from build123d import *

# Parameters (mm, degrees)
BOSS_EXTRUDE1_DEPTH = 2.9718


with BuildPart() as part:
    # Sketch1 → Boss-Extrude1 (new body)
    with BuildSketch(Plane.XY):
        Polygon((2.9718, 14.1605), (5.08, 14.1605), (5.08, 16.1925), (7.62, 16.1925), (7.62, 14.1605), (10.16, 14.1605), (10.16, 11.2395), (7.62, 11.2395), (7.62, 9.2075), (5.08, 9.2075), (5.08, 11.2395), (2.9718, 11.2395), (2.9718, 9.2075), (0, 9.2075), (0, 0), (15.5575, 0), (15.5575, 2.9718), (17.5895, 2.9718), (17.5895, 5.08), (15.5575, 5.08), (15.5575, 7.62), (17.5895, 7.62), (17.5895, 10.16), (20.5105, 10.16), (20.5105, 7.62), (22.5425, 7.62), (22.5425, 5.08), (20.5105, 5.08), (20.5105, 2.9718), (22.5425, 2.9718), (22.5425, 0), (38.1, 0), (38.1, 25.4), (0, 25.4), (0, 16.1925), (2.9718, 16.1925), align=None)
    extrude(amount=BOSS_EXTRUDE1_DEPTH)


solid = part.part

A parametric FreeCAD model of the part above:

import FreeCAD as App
import Part
import Sketcher
from FreeCAD import Vector
Q = App.Units.Quantity

doc = App.newDocument("Part")
body = doc.addObject("PartDesign::Body", "Body")

# Sketch on XY plane
sketch1 = body.newObject("Sketcher::SketchObject", "Sketch")
sketch1.AttachmentSupport = (doc.getObject("XY_Plane"), [""])
sketch1.MapMode = "FlatFace"
sketch1.addGeometry(Part.LineSegment(Vector(2.9718, 14.1605, 0), Vector(5.08, 14.1605, 0)), False)
sketch1.addGeometry(Part.LineSegment(Vector(5.08, 14.1605, 0), Vector(5.08, 16.1925, 0)), False)
sketch1.addGeometry(Part.LineSegment(Vector(5.08, 16.1925, 0), Vector(7.62, 16.1925, 0)), False)
sketch1.addGeometry(Part.LineSegment(Vector(7.62, 16.1925, 0), Vector(7.62, 14.1605, 0)), False)
sketch1.addGeometry(Part.LineSegment(Vector(7.62, 14.1605, 0), Vector(10.16, 14.1605, 0)), False)
sketch1.addGeometry(Part.LineSegment(Vector(10.16, 14.1605, 0), Vector(10.16, 11.2395, 0)), False)
sketch1.addGeometry(Part.LineSegment(Vector(10.16, 11.2395, 0), Vector(7.62, 11.2395, 0)), False)
sketch1.addGeometry(Part.LineSegment(Vector(7.62, 11.2395, 0), Vector(7.62, 9.2075, 0)), False)
sketch1.addGeometry(Part.LineSegment(Vector(7.62, 9.2075, 0), Vector(5.08, 9.2075, 0)), False)
sketch1.addGeometry(Part.LineSegment(Vector(5.08, 9.2075, 0), Vector(5.08, 11.2395, 0)), False)
sketch1.addGeometry(Part.LineSegment(Vector(5.08, 11.2395, 0), Vector(2.9718, 11.2395, 0)), False)
sketch1.addGeometry(Part.LineSegment(Vector(2.9718, 11.2395, 0), Vector(2.9718, 9.2075, 0)), False)
sketch1.addGeometry(Part.LineSegment(Vector(2.9718, 9.2075, 0), Vector(0, 9.2075, 0)), False)
sketch1.addGeometry(Part.LineSegment(Vector(0, 9.2075, 0), Vector(0, 0, 0)), False)
sketch1.addGeometry(Part.LineSegment(Vector(0, 0, 0), Vector(15.5575, 0, 0)), False)
sketch1.addGeometry(Part.LineSegment(Vector(15.5575, 0, 0), Vector(15.5575, 2.9718, 0)), False)
sketch1.addGeometry(Part.LineSegment(Vector(15.5575, 2.9718, 0), Vector(17.5895, 2.9718, 0)), False)
sketch1.addGeometry(Part.LineSegment(Vector(17.5895, 2.9718, 0), Vector(17.5895, 5.08, 0)), False)
sketch1.addGeometry(Part.LineSegment(Vector(17.5895, 5.08, 0), Vector(15.5575, 5.08, 0)), False)
sketch1.addGeometry(Part.LineSegment(Vector(15.5575, 5.08, 0), Vector(15.5575, 7.62, 0)), False)
sketch1.addGeometry(Part.LineSegment(Vector(15.5575, 7.62, 0), Vector(17.5895, 7.62, 0)), False)
sketch1.addGeometry(Part.LineSegment(Vector(17.5895, 7.62, 0), Vector(17.5895, 10.16, 0)), False)
sketch1.addGeometry(Part.LineSegment(Vector(17.5895, 10.16, 0), Vector(20.5105, 10.16, 0)), False)
sketch1.addGeometry(Part.LineSegment(Vector(20.5105, 10.16, 0), Vector(20.5105, 7.62, 0)), False)
sketch1.addGeometry(Part.LineSegment(Vector(20.5105, 7.62, 0), Vector(22.5425, 7.62, 0)), False)
sketch1.addGeometry(Part.LineSegment(Vector(22.5425, 7.62, 0), Vector(22.5425, 5.08, 0)), False)
sketch1.addGeometry(Part.LineSegment(Vector(22.5425, 5.08, 0), Vector(20.5105, 5.08, 0)), False)
sketch1.addGeometry(Part.LineSegment(Vector(20.5105, 5.08, 0), Vector(20.5105, 2.9718, 0)), False)
sketch1.addGeometry(Part.LineSegment(Vector(20.5105, 2.9718, 0), Vector(22.5425, 2.9718, 0)), False)
sketch1.addGeometry(Part.LineSegment(Vector(22.5425, 2.9718, 0), Vector(22.5425, 0, 0)), False)
sketch1.addGeometry(Part.LineSegment(Vector(22.5425, 0, 0), Vector(38.1, 0, 0)), False)
sketch1.addGeometry(Part.LineSegment(Vector(38.1, 0, 0), Vector(38.1, 25.4, 0)), False)
sketch1.addGeometry(Part.LineSegment(Vector(38.1, 25.4, 0), Vector(0, 25.4, 0)), False)
sketch1.addGeometry(Part.LineSegment(Vector(0, 25.4, 0), Vector(0, 16.1925, 0)), False)
sketch1.addGeometry(Part.LineSegment(Vector(0, 16.1925, 0), Vector(2.9718, 16.1925, 0)), False)
sketch1.addGeometry(Part.LineSegment(Vector(2.9718, 16.1925, 0), Vector(2.9718, 14.1605, 0)), False)
sketch1.addConstraint(Sketcher.Constraint("Coincident", 0, 2, 1, 1))
sketch1.addConstraint(Sketcher.Constraint("Coincident", 1, 2, 2, 1))
sketch1.addConstraint(Sketcher.Constraint("Coincident", 2, 2, 3, 1))
sketch1.addConstraint(Sketcher.Constraint("Coincident", 3, 2, 4, 1))
sketch1.addConstraint(Sketcher.Constraint("Coincident", 4, 2, 5, 1))
sketch1.addConstraint(Sketcher.Constraint("Coincident", 5, 2, 6, 1))
sketch1.addConstraint(Sketcher.Constraint("Coincident", 6, 2, 7, 1))
sketch1.addConstraint(Sketcher.Constraint("Coincident", 7, 2, 8, 1))
sketch1.addConstraint(Sketcher.Constraint("Coincident", 8, 2, 9, 1))
sketch1.addConstraint(Sketcher.Constraint("Coincident", 9, 2, 10, 1))
sketch1.addConstraint(Sketcher.Constraint("Coincident", 10, 2, 11, 1))
sketch1.addConstraint(Sketcher.Constraint("Coincident", 11, 2, 12, 1))
sketch1.addConstraint(Sketcher.Constraint("Coincident", 12, 2, 13, 1))
sketch1.addConstraint(Sketcher.Constraint("Coincident", 13, 2, 14, 1))
sketch1.addConstraint(Sketcher.Constraint("Coincident", 14, 2, 15, 1))
sketch1.addConstraint(Sketcher.Constraint("Coincident", 15, 2, 16, 1))
sketch1.addConstraint(Sketcher.Constraint("Coincident", 16, 2, 17, 1))
sketch1.addConstraint(Sketcher.Constraint("Coincident", 17, 2, 18, 1))
sketch1.addConstraint(Sketcher.Constraint("Coincident", 18, 2, 19, 1))
sketch1.addConstraint(Sketcher.Constraint("Coincident", 19, 2, 20, 1))
sketch1.addConstraint(Sketcher.Constraint("Coincident", 20, 2, 21, 1))
sketch1.addConstraint(Sketcher.Constraint("Coincident", 21, 2, 22, 1))
sketch1.addConstraint(Sketcher.Constraint("Coincident", 22, 2, 23, 1))
sketch1.addConstraint(Sketcher.Constraint("Coincident", 23, 2, 24, 1))
sketch1.addConstraint(Sketcher.Constraint("Coincident", 24, 2, 25, 1))
sketch1.addConstraint(Sketcher.Constraint("Coincident", 25, 2, 26, 1))
sketch1.addConstraint(Sketcher.Constraint("Coincident", 26, 2, 27, 1))
sketch1.addConstraint(Sketcher.Constraint("Coincident", 27, 2, 28, 1))
sketch1.addConstraint(Sketcher.Constraint("Coincident", 28, 2, 29, 1))
sketch1.addConstraint(Sketcher.Constraint("Coincident", 29, 2, 30, 1))
sketch1.addConstraint(Sketcher.Constraint("Coincident", 30, 2, 31, 1))
sketch1.addConstraint(Sketcher.Constraint("Coincident", 31, 2, 32, 1))
sketch1.addConstraint(Sketcher.Constraint("Coincident", 32, 2, 33, 1))
sketch1.addConstraint(Sketcher.Constraint("Coincident", 33, 2, 34, 1))
sketch1.addConstraint(Sketcher.Constraint("Coincident", 34, 2, 35, 1))
sketch1.addConstraint(Sketcher.Constraint("Coincident", 35, 2, 0, 1))
sketch1.addConstraint(Sketcher.Constraint("Horizontal", 0))
sketch1.addConstraint(Sketcher.Constraint("Vertical", 1))
sketch1.addConstraint(Sketcher.Constraint("Horizontal", 2))
sketch1.addConstraint(Sketcher.Constraint("Vertical", 3))
sketch1.addConstraint(Sketcher.Constraint("Horizontal", 4))
sketch1.addConstraint(Sketcher.Constraint("Vertical", 5))
sketch1.addConstraint(Sketcher.Constraint("Horizontal", 6))
sketch1.addConstraint(Sketcher.Constraint("Vertical", 7))
sketch1.addConstraint(Sketcher.Constraint("Horizontal", 8))
sketch1.addConstraint(Sketcher.Constraint("Vertical", 9))
sketch1.addConstraint(Sketcher.Constraint("Horizontal", 10))
sketch1.addConstraint(Sketcher.Constraint("Vertical", 11))
sketch1.addConstraint(Sketcher.Constraint("Horizontal", 12))
sketch1.addConstraint(Sketcher.Constraint("Vertical", 13))
sketch1.addConstraint(Sketcher.Constraint("Horizontal", 14))
sketch1.addConstraint(Sketcher.Constraint("Vertical", 15))
sketch1.addConstraint(Sketcher.Constraint("Horizontal", 16))
sketch1.addConstraint(Sketcher.Constraint("Vertical", 17))
sketch1.addConstraint(Sketcher.Constraint("Horizontal", 18))
sketch1.addConstraint(Sketcher.Constraint("Vertical", 19))
sketch1.addConstraint(Sketcher.Constraint("Horizontal", 20))
sketch1.addConstraint(Sketcher.Constraint("Vertical", 21))
sketch1.addConstraint(Sketcher.Constraint("Horizontal", 22))
sketch1.addConstraint(Sketcher.Constraint("Vertical", 23))
sketch1.addConstraint(Sketcher.Constraint("Horizontal", 24))
sketch1.addConstraint(Sketcher.Constraint("Vertical", 25))
sketch1.addConstraint(Sketcher.Constraint("Horizontal", 26))
sketch1.addConstraint(Sketcher.Constraint("Vertical", 27))
sketch1.addConstraint(Sketcher.Constraint("Horizontal", 28))
sketch1.addConstraint(Sketcher.Constraint("Vertical", 29))
sketch1.addConstraint(Sketcher.Constraint("Horizontal", 30))
sketch1.addConstraint(Sketcher.Constraint("Vertical", 31))
sketch1.addConstraint(Sketcher.Constraint("Horizontal", 32))
sketch1.addConstraint(Sketcher.Constraint("Vertical", 33))
sketch1.addConstraint(Sketcher.Constraint("Horizontal", 34))
sketch1.addConstraint(Sketcher.Constraint("Vertical", 35))
sketch1.addConstraint(Sketcher.Constraint("Coincident", 13, 2, -1, 1))
sketch1.addConstraint(Sketcher.Constraint("PointOnObject", 29, 2, -1))
sketch1.addConstraint(Sketcher.Constraint("PointOnObject", 32, 2, -2))
sketch1.addConstraint(Sketcher.Constraint("Horizontal", 0, 2, 3, 2))
sketch1.addConstraint(Sketcher.Constraint("Horizontal", 6, 2, 9, 2))
sketch1.addConstraint(Sketcher.Constraint("Horizontal", 8, 2, 11, 2))
sketch1.addConstraint(Sketcher.Constraint("Horizontal", 20, 2, 23, 2))
sketch1.addConstraint(Sketcher.Constraint("Horizontal", 18, 2, 25, 2))
sketch1.addConstraint(Sketcher.Constraint("Horizontal", 16, 2, 27, 2))
sketch1.addConstraint(Sketcher.Constraint("Horizontal", 2, 2, 33, 2))
sketch1.addConstraint(Sketcher.Constraint("Vertical", 3, 2, 6, 2))
sketch1.addConstraint(Sketcher.Constraint("Vertical", 1, 2, 8, 2))
sketch1.addConstraint(Sketcher.Constraint("Vertical", 15, 2, 18, 2))
sketch1.addConstraint(Sketcher.Constraint("Vertical", 17, 2, 20, 2))
sketch1.addConstraint(Sketcher.Constraint("Vertical", 23, 2, 26, 2))
sketch1.addConstraint(Sketcher.Constraint("Vertical", 25, 2, 28, 2))
sketch1.addConstraint(Sketcher.Constraint("Vertical", 11, 2, 34, 2))
sketch1.addConstraint(Sketcher.Constraint("Equal", 2, 4))
sketch1.addConstraint(Sketcher.Constraint("Equal", 20, 24))
sketch1.addConstraint(Sketcher.Constraint("Equal", 14, 30))
sketch1.addConstraint(Sketcher.Constraint("Equal", 28, 1))
sketch1.addConstraint(Sketcher.Constraint("Equal", 22, 5))
sketch1.addConstraint(Sketcher.Constraint("Equal", 3, 7))
sketch1.addConstraint(Sketcher.Constraint("Equal", 34, 15))
sketch1.addConstraint(Sketcher.Constraint("Equal", 10, 17))
sketch1.addConstraint(Sketcher.Constraint("Equal", 8, 19))
sketch1.addConstraint(Sketcher.Constraint("Equal", 19, 21))
sketch1.addConstraint(Sketcher.Constraint("Equal", 13, 33))
sketch1.addConstraint(Sketcher.Constraint("DistanceY", 31, 1, 31, 2, Q("1 in")))
sketch1.addConstraint(Sketcher.Constraint("DistanceX", 2, 1, 2, 2, Q("0.1 in")))
sketch1.addConstraint(Sketcher.Constraint("DistanceX", 32, 2, 32, 1, Q("1.5 in")))
sketch1.addConstraint(Sketcher.Constraint("DistanceX", 16, 1, 16, 2, Q("0.08 in")))
sketch1.addConstraint(Sketcher.Constraint("DistanceX", -1, 1, 0, 2, Q("0.2 in")))
sketch1.addConstraint(Sketcher.Constraint("DistanceX", 0, 1, 0, 2, Q("0.083 in")))
sketch1.addConstraint(Sketcher.Constraint("DistanceX", 22, 1, 22, 2, Q("0.115 in")))
pad1 = body.newObject("PartDesign::Pad", "Pad")
pad1.Profile = sketch1
pad1.Length = Q("0.117 in")

doc.recompute()
